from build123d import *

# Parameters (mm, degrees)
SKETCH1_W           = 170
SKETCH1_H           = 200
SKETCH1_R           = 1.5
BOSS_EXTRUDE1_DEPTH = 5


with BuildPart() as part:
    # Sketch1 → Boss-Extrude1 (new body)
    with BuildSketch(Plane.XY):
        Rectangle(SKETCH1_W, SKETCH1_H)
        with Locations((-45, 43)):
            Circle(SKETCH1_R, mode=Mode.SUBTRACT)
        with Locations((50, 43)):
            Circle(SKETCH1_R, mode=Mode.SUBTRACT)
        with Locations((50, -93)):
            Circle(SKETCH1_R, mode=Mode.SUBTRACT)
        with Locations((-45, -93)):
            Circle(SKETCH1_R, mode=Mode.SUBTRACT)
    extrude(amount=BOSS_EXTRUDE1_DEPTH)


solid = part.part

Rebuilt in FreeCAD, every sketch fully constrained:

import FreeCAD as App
import Part
import Sketcher
from FreeCAD import Vector


def add_polygon(sketch, points):
    """Adds a closed chain of lines whose ends are joined by coincident constraints."""
    first, n = sketch.GeometryCount, len(points)
    for a, b in zip(points, points[1:] + points[:1]):
        sketch.addGeometry(Part.LineSegment(App.Vector(*a, 0), App.Vector(*b, 0)), False)
    for i in range(n):
        sketch.addConstraint(Sketcher.Constraint("Coincident", first + i, 2, first + (i + 1) % n, 1))

doc = App.newDocument("Part")
params = doc.addObject("Spreadsheet::Sheet", "Params")
for row, (alias, value) in enumerate([
    ("sketch1_diameter", "3 mm"),
    ("sketch1_width", "170 mm"),
    ("sketch1_height", "200 mm"),
    ("pad1_length", "5 mm"),
], start=1):
    params.set(f"A{row}", alias)
    params.set(f"B{row}", "=" + value)
    params.setAlias(f"B{row}", alias)

body = doc.addObject("PartDesign::Body", "Body")

sketch1 = body.newObject("Sketcher::SketchObject", "Sketch")
sketch1.AttachmentSupport = (doc.getObject("XY_Plane"), [""])
sketch1.MapMode = "FlatFace"
add_polygon(sketch1, [(-85, 100), (-85, -100), (85, -100), (85, 100)])
sketch1.addGeometry(Part.Circle(Vector(-45, -93, 0), Vector(0, 0, 1), 1.5), False)
sketch1.addGeometry(Part.Circle(Vector(50, -93, 0), Vector(0, 0, 1), 1.5), False)
sketch1.addGeometry(Part.Circle(Vector(-45, 43, 0), Vector(0, 0, 1), 1.5), False)
sketch1.addGeometry(Part.Circle(Vector(50, 43, 0), Vector(0, 0, 1), 1.5), False)
sketch1.addConstraint(Sketcher.Constraint("Vertical", 0))
sketch1.addConstraint(Sketcher.Constraint("Horizontal", 1))
sketch1.addConstraint(Sketcher.Constraint("Vertical", 2))
sketch1.addConstraint(Sketcher.Constraint("Horizontal", 3))
sketch1.addConstraint(Sketcher.Constraint("Equal", 4, 5))
sketch1.addConstraint(Sketcher.Constraint("Equal", 5, 6))
sketch1.addConstraint(Sketcher.Constraint("Equal", 6, 7))
sketch1.addConstraint(Sketcher.Constraint("Symmetric", 0, 2, 2, 2, -1, 1))
sketch1.addConstraint(Sketcher.Constraint("Horizontal", 4, 3, 5, 3))
sketch1.addConstraint(Sketcher.Constraint("Horizontal", 6, 3, 7, 3))
sketch1.addConstraint(Sketcher.Constraint("Vertical", 4, 3, 6, 3))
sketch1.addConstraint(Sketcher.Constraint("Vertical", 5, 3, 7, 3))
sketch1.addConstraint(Sketcher.Constraint("Diameter", 4, 3.0))
sketch1.addConstraint(Sketcher.Constraint("DistanceX", 1, 1, 1, 2, 170.0))
sketch1.addConstraint(Sketcher.Constraint("DistanceY", 0, 2, 0, 1, 200.0))
sketch1.addConstraint(Sketcher.Constraint("DistanceX", 4, 3, -1, 1, 45.0))
sketch1.addConstraint(Sketcher.Constraint("DistanceY", 4, 3, -1, 1, 93.0))
sketch1.addConstraint(Sketcher.Constraint("DistanceX", -1, 1, 5, 3, 50.0))
sketch1.addConstraint(Sketcher.Constraint("DistanceY", -1, 1, 6, 3, 43.0))
sketch1.setExpression("Constraints[16]", "Params.sketch1_diameter")
sketch1.setExpression("Constraints[17]", "Params.sketch1_width")
sketch1.setExpression("Constraints[18]", "Params.sketch1_height")
pad1 = body.newObject("PartDesign::Pad", "Pad")
pad1.Profile = sketch1
pad1.setExpression("Length", "Params.pad1_length")

doc.recompute()
